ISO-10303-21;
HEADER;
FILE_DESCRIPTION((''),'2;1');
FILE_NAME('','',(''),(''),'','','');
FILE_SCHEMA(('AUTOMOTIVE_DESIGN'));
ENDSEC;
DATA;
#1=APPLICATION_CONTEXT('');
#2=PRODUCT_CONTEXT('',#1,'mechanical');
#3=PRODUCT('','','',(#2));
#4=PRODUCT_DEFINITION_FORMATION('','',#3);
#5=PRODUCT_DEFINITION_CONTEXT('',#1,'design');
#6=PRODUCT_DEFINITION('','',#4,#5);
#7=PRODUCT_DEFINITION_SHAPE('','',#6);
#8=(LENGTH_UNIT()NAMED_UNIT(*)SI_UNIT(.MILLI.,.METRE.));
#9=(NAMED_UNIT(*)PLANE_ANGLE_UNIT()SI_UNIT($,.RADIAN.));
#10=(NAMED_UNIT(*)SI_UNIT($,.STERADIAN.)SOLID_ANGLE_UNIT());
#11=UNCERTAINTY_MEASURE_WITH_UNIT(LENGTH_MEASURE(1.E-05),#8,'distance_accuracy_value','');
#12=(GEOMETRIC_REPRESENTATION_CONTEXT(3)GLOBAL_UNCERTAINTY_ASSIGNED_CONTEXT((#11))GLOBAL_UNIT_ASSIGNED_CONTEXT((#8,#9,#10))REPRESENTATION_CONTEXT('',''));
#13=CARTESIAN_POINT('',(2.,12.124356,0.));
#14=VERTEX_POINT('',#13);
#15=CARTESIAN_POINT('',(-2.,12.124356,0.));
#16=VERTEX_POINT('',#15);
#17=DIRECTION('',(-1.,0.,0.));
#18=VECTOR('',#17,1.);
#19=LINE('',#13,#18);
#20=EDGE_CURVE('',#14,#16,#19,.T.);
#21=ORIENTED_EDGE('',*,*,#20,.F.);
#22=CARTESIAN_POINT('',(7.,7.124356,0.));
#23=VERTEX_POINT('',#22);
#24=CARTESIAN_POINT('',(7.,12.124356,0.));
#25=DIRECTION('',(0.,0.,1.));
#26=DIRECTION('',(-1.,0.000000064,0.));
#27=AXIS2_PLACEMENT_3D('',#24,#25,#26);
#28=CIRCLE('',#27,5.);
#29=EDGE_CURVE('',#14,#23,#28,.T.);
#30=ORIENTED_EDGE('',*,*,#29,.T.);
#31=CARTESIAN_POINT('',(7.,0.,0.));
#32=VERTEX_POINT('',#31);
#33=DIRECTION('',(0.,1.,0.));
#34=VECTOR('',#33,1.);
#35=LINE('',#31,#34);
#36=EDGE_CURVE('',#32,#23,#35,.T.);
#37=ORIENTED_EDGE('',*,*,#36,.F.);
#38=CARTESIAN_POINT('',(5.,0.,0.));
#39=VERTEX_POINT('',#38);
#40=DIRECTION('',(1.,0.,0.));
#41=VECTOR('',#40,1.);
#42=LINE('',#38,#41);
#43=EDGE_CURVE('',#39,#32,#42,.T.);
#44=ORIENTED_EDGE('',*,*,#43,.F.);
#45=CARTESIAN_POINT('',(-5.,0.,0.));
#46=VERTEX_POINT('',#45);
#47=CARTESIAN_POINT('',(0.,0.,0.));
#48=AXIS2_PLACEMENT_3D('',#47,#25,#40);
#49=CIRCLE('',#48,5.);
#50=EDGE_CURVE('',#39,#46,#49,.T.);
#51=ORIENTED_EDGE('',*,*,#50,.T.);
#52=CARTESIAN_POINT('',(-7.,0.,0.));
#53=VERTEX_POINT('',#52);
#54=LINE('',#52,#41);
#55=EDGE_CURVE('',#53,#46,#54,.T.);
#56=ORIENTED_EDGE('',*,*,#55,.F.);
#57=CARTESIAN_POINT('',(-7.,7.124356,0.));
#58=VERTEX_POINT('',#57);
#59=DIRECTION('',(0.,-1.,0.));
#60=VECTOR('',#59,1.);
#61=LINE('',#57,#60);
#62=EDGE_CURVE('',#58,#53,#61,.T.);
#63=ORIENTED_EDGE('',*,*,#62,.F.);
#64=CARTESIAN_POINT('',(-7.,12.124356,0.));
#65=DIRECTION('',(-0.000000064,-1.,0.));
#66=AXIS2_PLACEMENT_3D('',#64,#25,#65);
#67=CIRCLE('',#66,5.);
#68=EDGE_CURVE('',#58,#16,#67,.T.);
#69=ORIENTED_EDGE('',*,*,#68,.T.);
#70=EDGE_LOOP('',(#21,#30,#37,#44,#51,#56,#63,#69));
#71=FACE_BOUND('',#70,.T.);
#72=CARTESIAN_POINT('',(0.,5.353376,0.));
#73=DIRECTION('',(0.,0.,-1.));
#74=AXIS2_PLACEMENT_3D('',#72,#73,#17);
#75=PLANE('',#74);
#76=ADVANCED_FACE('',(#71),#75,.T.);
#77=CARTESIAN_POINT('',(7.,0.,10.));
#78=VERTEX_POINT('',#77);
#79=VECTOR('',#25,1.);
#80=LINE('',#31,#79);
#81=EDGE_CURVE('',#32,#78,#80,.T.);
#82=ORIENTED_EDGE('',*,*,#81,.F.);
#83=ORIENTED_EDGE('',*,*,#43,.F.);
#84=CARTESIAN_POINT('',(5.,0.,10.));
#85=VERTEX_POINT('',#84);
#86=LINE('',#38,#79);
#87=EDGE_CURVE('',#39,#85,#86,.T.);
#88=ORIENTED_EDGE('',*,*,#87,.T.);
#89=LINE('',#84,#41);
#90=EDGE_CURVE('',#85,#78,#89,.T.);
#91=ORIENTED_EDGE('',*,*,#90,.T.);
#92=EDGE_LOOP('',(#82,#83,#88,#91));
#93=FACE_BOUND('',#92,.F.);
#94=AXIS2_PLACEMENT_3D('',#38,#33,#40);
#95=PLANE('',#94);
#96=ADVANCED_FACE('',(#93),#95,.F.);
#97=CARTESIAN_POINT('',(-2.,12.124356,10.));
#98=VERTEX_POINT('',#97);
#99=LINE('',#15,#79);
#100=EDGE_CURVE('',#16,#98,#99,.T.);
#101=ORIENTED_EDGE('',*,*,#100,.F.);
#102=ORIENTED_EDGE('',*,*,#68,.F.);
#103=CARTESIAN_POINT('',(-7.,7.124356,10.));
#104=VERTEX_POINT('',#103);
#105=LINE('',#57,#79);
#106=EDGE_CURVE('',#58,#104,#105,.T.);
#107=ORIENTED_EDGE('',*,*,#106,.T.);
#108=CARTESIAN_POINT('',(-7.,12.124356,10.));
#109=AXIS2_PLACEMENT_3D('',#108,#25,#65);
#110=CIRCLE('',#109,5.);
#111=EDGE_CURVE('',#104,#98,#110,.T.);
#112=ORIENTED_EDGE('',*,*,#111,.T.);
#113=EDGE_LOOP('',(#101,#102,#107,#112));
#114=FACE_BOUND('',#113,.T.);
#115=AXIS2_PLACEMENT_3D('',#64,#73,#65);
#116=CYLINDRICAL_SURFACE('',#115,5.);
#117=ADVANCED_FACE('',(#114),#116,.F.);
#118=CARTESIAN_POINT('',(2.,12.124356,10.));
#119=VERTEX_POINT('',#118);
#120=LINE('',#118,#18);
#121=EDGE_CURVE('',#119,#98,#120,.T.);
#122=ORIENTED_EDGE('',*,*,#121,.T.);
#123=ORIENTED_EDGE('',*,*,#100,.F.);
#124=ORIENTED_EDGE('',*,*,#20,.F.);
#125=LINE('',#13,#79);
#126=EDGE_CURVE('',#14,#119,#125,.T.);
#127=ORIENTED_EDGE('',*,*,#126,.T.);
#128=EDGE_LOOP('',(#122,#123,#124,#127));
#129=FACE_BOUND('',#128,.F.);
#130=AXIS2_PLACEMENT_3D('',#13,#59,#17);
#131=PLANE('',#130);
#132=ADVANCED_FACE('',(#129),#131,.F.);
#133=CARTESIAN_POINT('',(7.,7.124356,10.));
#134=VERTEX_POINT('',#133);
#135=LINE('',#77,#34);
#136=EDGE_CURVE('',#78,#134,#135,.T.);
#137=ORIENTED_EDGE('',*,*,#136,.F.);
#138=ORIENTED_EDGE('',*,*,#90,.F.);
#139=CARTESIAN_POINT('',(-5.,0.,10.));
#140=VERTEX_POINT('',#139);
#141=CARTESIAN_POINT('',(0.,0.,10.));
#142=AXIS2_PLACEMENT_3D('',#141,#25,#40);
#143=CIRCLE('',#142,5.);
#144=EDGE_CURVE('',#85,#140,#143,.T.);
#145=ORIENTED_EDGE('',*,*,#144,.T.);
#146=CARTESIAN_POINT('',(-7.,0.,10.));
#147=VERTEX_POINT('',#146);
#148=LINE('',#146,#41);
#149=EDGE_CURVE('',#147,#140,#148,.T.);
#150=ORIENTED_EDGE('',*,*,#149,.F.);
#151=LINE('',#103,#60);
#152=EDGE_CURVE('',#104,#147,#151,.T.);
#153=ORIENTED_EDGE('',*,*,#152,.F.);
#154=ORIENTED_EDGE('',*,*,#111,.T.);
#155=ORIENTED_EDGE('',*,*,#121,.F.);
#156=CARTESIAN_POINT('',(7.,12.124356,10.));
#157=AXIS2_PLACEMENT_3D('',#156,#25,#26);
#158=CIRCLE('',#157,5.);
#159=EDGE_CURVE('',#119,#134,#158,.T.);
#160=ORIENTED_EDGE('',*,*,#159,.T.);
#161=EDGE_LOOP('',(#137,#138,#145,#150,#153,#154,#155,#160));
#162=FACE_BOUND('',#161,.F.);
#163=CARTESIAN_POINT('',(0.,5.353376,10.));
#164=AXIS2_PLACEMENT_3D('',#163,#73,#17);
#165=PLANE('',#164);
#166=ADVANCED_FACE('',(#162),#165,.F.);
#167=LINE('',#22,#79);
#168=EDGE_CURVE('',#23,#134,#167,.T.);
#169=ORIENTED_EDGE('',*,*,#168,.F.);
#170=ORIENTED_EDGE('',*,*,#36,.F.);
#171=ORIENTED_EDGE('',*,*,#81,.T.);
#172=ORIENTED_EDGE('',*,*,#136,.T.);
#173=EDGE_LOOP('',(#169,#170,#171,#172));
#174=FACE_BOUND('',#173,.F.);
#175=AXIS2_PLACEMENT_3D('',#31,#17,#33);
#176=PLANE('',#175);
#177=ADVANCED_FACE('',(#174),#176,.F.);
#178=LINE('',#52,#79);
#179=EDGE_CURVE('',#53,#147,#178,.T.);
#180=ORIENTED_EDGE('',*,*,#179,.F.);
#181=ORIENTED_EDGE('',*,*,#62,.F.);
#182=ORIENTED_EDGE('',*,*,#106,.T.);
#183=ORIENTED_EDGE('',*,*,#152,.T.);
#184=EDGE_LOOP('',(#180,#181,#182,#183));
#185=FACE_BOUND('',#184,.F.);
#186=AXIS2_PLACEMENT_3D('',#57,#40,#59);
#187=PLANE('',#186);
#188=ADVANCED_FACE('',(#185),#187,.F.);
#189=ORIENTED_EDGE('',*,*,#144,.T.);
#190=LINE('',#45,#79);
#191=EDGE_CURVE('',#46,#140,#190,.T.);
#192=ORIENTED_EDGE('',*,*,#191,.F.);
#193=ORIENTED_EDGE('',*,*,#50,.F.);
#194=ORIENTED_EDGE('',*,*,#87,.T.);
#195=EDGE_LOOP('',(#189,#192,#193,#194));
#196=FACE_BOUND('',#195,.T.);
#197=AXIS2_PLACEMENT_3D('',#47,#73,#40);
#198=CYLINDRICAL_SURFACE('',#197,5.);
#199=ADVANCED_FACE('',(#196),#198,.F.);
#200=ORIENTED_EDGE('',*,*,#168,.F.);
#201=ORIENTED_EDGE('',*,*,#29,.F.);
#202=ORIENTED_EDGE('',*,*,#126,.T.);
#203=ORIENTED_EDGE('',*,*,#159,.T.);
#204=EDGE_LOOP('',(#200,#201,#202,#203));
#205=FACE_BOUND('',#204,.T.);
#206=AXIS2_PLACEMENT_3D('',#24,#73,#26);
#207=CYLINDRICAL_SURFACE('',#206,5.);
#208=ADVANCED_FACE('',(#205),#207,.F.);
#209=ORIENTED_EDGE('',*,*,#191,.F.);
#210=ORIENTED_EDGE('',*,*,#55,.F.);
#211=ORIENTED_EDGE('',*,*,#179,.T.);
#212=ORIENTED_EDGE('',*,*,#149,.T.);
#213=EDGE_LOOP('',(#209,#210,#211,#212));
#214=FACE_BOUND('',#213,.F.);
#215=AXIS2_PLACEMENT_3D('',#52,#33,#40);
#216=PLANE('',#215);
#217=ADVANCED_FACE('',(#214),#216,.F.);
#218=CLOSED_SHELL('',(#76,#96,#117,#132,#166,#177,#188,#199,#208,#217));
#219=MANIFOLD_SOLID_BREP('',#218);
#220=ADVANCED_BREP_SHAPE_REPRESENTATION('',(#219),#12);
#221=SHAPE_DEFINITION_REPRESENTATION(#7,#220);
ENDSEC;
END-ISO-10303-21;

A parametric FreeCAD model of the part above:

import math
import FreeCAD as App
import Part
import Sketcher

doc = App.newDocument("Part")
body = doc.addObject("PartDesign::Body", "Body")

# Sketch on XY plane
sketch1 = doc.addObject("Sketcher::SketchObject", "Sketch")
body.addObject(sketch1)
sketch1.AttachmentSupport = (doc.XY_Plane, [""])
sketch1.MapMode = "FlatFace"
sketch1.addGeometry([
    Part.ArcOfCircle(Part.Circle(App.Vector(0, 0, 0), App.Vector(0, 0, 1), 5), math.radians(0), math.radians(180)),  # 0
    Part.LineSegment(App.Vector(5, 0, 0), App.Vector(7, 0, 0)),  # 1
    Part.LineSegment(App.Vector(7, 0, 0), App.Vector(7, 7.1, 0)),  # 2
    Part.ArcOfCircle(Part.Circle(App.Vector(7, 12.1, 0), App.Vector(0, 0, 1), 5), math.radians(180), math.radians(270)),  # 3
    Part.LineSegment(App.Vector(2, 12.1, 0), App.Vector(-2, 12.1, 0)),  # 4
    Part.ArcOfCircle(Part.Circle(App.Vector(-7, 12.1, 0), App.Vector(0, 0, 1), 5), math.radians(-90), math.radians(0)),  # 5
    Part.LineSegment(App.Vector(-7, 7.1, 0), App.Vector(-7, 0, 0)),  # 6
    Part.LineSegment(App.Vector(-7, 0, 0), App.Vector(-5, 0, 0)),  # 7
], False)
sketch1.addConstraint([
    Sketcher.Constraint("Coincident", 0, 1, 1, 1),
    Sketcher.Constraint("Coincident", 1, 2, 2, 1),
    Sketcher.Constraint("Coincident", 2, 2, 3, 2),
    Sketcher.Constraint("Coincident", 3, 1, 4, 1),
    Sketcher.Constraint("Coincident", 4, 2, 5, 2),
    Sketcher.Constraint("Coincident", 5, 1, 6, 1),
    Sketcher.Constraint("Coincident", 6, 2, 7, 1),
    Sketcher.Constraint("Coincident", 7, 2, 0, 2),
    Sketcher.Constraint("Horizontal", 1),
    Sketcher.Constraint("Vertical", 2),
    Sketcher.Constraint("Horizontal", 4),
    Sketcher.Constraint("Vertical", 6),
    Sketcher.Constraint("Horizontal", 7),
    Sketcher.Constraint("Coincident", 0, 3, -1, 1),
    Sketcher.Constraint("Equal", 0, 3),
    Sketcher.Constraint("Equal", 3, 5),
    Sketcher.Constraint("Symmetric", 1, 2, 6, 2, -1, 1),
    Sketcher.Constraint("Symmetric", 3, 3, 5, 3, -2),
    Sketcher.Constraint("PointOnObject", 0, 1, -1),
    Sketcher.Constraint("Horizontal", 5, 3, 3, 1),
    Sketcher.Constraint("Vertical", 3, 3, 1, 2),
    Sketcher.Constraint("Radius", 0, 5.0),
    Sketcher.Constraint("DistanceX", 1, 1, 1, 2, 2.0),
    Sketcher.Constraint("DistanceY", 2, 1, 2, 2, 7.124356),
])
pad1 = doc.addObject("PartDesign::Pad", "Pad")
body.addObject(pad1)
pad1.Profile = sketch1
pad1.Length = 10

doc.recompute()
